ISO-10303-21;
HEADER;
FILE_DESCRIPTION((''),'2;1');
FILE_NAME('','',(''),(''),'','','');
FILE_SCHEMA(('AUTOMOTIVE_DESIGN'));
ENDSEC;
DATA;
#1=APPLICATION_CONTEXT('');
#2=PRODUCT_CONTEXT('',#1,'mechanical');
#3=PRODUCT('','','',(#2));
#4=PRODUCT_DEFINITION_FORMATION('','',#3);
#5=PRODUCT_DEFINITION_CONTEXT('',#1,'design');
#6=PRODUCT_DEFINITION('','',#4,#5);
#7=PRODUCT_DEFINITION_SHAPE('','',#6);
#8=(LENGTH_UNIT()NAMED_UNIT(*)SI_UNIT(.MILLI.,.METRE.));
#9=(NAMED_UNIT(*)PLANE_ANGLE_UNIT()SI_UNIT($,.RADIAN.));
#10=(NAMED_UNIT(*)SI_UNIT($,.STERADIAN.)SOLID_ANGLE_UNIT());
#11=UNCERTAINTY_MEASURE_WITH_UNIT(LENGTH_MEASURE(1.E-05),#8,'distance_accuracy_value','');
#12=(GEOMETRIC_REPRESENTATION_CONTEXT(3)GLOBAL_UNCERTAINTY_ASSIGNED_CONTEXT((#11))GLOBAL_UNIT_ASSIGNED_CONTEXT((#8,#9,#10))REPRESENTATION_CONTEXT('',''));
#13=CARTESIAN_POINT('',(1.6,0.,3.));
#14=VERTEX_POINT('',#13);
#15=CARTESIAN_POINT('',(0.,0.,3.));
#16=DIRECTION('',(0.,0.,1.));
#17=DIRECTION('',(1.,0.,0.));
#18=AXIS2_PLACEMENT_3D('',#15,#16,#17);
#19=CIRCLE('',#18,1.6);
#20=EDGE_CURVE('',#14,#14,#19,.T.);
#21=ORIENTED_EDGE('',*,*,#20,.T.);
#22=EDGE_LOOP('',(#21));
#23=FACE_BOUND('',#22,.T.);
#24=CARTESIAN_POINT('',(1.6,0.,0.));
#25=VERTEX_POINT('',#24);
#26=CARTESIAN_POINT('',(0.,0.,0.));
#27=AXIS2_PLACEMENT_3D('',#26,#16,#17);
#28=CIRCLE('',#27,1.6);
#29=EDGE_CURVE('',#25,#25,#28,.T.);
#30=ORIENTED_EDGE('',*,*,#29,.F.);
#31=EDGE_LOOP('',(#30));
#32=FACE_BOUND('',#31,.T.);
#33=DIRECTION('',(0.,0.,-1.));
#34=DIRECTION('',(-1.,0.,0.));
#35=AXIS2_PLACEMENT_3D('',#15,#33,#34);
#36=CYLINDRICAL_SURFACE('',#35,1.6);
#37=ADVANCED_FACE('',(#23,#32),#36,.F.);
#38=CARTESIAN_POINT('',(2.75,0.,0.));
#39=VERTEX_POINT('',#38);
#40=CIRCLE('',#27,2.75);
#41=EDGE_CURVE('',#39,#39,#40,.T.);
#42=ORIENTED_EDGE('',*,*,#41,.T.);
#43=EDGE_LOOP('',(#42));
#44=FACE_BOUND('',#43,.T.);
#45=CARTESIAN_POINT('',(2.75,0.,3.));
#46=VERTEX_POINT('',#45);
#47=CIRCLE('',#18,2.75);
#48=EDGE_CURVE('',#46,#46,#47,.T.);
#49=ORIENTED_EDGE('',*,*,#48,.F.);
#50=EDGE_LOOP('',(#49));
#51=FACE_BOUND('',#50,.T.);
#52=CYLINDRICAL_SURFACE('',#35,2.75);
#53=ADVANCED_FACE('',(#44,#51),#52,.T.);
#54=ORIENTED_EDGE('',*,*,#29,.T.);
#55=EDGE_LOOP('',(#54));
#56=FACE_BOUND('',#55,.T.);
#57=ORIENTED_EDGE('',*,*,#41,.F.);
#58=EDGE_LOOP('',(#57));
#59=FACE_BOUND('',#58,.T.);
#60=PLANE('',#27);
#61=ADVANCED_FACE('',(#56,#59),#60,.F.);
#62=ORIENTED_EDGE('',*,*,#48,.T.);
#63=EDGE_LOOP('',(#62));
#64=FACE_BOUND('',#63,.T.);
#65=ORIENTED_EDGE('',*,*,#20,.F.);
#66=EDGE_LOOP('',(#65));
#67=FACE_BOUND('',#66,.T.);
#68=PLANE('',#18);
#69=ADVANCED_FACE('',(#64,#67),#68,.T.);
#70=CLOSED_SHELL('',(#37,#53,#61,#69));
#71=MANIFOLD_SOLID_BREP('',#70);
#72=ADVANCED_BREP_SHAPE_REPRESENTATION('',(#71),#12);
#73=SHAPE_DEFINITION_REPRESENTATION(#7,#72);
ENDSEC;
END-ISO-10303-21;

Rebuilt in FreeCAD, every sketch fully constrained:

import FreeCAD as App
import Part
import Sketcher

V = App.Vector
Q = App.Units.Quantity

doc = App.newDocument("Part")
params = doc.addObject("Spreadsheet::Sheet", "Params")
for row, (alias, value) in enumerate([
    ("sketch1_diameter", "5.5 mm"),
    ("sketch1_diameter2", "3.2 mm"),
    ("pad1_length", "3 mm"),
], start=1):
    params.set(f"A{row}", alias)
    params.set(f"B{row}", "=" + value)
    params.setAlias(f"B{row}", alias)

body = doc.addObject("PartDesign::Body", "Body")

sketch1 = body.newObject("Sketcher::SketchObject", "Sketch")
sketch1.AttachmentSupport = (doc.getObject("XY_Plane"), [""])
sketch1.MapMode = "FlatFace"
sketch1.addGeometry(Part.Circle(V(0, 0, 0), V(0, 0, 1), 2.8), False)
sketch1.addGeometry(Part.Circle(V(0, 0, 0), V(0, 0, 1), 1.6), False)
sketch1.addConstraint(Sketcher.Constraint("Coincident", 0, 3, -1, 1))
sketch1.addConstraint(Sketcher.Constraint("Coincident", 1, 3, -1, 1))
sketch1.addConstraint(Sketcher.Constraint("Diameter", 0, Q("5.5 mm")))
sketch1.addConstraint(Sketcher.Constraint("Diameter", 1, Q("3.2 mm")))
sketch1.setExpression("Constraints[2]", "Params.sketch1_diameter")
sketch1.setExpression("Constraints[3]", "Params.sketch1_diameter2")
pad1 = body.newObject("PartDesign::Pad", "Pad")
pad1.Profile = sketch1
pad1.setExpression("Length", "Params.pad1_length")

doc.recompute()
